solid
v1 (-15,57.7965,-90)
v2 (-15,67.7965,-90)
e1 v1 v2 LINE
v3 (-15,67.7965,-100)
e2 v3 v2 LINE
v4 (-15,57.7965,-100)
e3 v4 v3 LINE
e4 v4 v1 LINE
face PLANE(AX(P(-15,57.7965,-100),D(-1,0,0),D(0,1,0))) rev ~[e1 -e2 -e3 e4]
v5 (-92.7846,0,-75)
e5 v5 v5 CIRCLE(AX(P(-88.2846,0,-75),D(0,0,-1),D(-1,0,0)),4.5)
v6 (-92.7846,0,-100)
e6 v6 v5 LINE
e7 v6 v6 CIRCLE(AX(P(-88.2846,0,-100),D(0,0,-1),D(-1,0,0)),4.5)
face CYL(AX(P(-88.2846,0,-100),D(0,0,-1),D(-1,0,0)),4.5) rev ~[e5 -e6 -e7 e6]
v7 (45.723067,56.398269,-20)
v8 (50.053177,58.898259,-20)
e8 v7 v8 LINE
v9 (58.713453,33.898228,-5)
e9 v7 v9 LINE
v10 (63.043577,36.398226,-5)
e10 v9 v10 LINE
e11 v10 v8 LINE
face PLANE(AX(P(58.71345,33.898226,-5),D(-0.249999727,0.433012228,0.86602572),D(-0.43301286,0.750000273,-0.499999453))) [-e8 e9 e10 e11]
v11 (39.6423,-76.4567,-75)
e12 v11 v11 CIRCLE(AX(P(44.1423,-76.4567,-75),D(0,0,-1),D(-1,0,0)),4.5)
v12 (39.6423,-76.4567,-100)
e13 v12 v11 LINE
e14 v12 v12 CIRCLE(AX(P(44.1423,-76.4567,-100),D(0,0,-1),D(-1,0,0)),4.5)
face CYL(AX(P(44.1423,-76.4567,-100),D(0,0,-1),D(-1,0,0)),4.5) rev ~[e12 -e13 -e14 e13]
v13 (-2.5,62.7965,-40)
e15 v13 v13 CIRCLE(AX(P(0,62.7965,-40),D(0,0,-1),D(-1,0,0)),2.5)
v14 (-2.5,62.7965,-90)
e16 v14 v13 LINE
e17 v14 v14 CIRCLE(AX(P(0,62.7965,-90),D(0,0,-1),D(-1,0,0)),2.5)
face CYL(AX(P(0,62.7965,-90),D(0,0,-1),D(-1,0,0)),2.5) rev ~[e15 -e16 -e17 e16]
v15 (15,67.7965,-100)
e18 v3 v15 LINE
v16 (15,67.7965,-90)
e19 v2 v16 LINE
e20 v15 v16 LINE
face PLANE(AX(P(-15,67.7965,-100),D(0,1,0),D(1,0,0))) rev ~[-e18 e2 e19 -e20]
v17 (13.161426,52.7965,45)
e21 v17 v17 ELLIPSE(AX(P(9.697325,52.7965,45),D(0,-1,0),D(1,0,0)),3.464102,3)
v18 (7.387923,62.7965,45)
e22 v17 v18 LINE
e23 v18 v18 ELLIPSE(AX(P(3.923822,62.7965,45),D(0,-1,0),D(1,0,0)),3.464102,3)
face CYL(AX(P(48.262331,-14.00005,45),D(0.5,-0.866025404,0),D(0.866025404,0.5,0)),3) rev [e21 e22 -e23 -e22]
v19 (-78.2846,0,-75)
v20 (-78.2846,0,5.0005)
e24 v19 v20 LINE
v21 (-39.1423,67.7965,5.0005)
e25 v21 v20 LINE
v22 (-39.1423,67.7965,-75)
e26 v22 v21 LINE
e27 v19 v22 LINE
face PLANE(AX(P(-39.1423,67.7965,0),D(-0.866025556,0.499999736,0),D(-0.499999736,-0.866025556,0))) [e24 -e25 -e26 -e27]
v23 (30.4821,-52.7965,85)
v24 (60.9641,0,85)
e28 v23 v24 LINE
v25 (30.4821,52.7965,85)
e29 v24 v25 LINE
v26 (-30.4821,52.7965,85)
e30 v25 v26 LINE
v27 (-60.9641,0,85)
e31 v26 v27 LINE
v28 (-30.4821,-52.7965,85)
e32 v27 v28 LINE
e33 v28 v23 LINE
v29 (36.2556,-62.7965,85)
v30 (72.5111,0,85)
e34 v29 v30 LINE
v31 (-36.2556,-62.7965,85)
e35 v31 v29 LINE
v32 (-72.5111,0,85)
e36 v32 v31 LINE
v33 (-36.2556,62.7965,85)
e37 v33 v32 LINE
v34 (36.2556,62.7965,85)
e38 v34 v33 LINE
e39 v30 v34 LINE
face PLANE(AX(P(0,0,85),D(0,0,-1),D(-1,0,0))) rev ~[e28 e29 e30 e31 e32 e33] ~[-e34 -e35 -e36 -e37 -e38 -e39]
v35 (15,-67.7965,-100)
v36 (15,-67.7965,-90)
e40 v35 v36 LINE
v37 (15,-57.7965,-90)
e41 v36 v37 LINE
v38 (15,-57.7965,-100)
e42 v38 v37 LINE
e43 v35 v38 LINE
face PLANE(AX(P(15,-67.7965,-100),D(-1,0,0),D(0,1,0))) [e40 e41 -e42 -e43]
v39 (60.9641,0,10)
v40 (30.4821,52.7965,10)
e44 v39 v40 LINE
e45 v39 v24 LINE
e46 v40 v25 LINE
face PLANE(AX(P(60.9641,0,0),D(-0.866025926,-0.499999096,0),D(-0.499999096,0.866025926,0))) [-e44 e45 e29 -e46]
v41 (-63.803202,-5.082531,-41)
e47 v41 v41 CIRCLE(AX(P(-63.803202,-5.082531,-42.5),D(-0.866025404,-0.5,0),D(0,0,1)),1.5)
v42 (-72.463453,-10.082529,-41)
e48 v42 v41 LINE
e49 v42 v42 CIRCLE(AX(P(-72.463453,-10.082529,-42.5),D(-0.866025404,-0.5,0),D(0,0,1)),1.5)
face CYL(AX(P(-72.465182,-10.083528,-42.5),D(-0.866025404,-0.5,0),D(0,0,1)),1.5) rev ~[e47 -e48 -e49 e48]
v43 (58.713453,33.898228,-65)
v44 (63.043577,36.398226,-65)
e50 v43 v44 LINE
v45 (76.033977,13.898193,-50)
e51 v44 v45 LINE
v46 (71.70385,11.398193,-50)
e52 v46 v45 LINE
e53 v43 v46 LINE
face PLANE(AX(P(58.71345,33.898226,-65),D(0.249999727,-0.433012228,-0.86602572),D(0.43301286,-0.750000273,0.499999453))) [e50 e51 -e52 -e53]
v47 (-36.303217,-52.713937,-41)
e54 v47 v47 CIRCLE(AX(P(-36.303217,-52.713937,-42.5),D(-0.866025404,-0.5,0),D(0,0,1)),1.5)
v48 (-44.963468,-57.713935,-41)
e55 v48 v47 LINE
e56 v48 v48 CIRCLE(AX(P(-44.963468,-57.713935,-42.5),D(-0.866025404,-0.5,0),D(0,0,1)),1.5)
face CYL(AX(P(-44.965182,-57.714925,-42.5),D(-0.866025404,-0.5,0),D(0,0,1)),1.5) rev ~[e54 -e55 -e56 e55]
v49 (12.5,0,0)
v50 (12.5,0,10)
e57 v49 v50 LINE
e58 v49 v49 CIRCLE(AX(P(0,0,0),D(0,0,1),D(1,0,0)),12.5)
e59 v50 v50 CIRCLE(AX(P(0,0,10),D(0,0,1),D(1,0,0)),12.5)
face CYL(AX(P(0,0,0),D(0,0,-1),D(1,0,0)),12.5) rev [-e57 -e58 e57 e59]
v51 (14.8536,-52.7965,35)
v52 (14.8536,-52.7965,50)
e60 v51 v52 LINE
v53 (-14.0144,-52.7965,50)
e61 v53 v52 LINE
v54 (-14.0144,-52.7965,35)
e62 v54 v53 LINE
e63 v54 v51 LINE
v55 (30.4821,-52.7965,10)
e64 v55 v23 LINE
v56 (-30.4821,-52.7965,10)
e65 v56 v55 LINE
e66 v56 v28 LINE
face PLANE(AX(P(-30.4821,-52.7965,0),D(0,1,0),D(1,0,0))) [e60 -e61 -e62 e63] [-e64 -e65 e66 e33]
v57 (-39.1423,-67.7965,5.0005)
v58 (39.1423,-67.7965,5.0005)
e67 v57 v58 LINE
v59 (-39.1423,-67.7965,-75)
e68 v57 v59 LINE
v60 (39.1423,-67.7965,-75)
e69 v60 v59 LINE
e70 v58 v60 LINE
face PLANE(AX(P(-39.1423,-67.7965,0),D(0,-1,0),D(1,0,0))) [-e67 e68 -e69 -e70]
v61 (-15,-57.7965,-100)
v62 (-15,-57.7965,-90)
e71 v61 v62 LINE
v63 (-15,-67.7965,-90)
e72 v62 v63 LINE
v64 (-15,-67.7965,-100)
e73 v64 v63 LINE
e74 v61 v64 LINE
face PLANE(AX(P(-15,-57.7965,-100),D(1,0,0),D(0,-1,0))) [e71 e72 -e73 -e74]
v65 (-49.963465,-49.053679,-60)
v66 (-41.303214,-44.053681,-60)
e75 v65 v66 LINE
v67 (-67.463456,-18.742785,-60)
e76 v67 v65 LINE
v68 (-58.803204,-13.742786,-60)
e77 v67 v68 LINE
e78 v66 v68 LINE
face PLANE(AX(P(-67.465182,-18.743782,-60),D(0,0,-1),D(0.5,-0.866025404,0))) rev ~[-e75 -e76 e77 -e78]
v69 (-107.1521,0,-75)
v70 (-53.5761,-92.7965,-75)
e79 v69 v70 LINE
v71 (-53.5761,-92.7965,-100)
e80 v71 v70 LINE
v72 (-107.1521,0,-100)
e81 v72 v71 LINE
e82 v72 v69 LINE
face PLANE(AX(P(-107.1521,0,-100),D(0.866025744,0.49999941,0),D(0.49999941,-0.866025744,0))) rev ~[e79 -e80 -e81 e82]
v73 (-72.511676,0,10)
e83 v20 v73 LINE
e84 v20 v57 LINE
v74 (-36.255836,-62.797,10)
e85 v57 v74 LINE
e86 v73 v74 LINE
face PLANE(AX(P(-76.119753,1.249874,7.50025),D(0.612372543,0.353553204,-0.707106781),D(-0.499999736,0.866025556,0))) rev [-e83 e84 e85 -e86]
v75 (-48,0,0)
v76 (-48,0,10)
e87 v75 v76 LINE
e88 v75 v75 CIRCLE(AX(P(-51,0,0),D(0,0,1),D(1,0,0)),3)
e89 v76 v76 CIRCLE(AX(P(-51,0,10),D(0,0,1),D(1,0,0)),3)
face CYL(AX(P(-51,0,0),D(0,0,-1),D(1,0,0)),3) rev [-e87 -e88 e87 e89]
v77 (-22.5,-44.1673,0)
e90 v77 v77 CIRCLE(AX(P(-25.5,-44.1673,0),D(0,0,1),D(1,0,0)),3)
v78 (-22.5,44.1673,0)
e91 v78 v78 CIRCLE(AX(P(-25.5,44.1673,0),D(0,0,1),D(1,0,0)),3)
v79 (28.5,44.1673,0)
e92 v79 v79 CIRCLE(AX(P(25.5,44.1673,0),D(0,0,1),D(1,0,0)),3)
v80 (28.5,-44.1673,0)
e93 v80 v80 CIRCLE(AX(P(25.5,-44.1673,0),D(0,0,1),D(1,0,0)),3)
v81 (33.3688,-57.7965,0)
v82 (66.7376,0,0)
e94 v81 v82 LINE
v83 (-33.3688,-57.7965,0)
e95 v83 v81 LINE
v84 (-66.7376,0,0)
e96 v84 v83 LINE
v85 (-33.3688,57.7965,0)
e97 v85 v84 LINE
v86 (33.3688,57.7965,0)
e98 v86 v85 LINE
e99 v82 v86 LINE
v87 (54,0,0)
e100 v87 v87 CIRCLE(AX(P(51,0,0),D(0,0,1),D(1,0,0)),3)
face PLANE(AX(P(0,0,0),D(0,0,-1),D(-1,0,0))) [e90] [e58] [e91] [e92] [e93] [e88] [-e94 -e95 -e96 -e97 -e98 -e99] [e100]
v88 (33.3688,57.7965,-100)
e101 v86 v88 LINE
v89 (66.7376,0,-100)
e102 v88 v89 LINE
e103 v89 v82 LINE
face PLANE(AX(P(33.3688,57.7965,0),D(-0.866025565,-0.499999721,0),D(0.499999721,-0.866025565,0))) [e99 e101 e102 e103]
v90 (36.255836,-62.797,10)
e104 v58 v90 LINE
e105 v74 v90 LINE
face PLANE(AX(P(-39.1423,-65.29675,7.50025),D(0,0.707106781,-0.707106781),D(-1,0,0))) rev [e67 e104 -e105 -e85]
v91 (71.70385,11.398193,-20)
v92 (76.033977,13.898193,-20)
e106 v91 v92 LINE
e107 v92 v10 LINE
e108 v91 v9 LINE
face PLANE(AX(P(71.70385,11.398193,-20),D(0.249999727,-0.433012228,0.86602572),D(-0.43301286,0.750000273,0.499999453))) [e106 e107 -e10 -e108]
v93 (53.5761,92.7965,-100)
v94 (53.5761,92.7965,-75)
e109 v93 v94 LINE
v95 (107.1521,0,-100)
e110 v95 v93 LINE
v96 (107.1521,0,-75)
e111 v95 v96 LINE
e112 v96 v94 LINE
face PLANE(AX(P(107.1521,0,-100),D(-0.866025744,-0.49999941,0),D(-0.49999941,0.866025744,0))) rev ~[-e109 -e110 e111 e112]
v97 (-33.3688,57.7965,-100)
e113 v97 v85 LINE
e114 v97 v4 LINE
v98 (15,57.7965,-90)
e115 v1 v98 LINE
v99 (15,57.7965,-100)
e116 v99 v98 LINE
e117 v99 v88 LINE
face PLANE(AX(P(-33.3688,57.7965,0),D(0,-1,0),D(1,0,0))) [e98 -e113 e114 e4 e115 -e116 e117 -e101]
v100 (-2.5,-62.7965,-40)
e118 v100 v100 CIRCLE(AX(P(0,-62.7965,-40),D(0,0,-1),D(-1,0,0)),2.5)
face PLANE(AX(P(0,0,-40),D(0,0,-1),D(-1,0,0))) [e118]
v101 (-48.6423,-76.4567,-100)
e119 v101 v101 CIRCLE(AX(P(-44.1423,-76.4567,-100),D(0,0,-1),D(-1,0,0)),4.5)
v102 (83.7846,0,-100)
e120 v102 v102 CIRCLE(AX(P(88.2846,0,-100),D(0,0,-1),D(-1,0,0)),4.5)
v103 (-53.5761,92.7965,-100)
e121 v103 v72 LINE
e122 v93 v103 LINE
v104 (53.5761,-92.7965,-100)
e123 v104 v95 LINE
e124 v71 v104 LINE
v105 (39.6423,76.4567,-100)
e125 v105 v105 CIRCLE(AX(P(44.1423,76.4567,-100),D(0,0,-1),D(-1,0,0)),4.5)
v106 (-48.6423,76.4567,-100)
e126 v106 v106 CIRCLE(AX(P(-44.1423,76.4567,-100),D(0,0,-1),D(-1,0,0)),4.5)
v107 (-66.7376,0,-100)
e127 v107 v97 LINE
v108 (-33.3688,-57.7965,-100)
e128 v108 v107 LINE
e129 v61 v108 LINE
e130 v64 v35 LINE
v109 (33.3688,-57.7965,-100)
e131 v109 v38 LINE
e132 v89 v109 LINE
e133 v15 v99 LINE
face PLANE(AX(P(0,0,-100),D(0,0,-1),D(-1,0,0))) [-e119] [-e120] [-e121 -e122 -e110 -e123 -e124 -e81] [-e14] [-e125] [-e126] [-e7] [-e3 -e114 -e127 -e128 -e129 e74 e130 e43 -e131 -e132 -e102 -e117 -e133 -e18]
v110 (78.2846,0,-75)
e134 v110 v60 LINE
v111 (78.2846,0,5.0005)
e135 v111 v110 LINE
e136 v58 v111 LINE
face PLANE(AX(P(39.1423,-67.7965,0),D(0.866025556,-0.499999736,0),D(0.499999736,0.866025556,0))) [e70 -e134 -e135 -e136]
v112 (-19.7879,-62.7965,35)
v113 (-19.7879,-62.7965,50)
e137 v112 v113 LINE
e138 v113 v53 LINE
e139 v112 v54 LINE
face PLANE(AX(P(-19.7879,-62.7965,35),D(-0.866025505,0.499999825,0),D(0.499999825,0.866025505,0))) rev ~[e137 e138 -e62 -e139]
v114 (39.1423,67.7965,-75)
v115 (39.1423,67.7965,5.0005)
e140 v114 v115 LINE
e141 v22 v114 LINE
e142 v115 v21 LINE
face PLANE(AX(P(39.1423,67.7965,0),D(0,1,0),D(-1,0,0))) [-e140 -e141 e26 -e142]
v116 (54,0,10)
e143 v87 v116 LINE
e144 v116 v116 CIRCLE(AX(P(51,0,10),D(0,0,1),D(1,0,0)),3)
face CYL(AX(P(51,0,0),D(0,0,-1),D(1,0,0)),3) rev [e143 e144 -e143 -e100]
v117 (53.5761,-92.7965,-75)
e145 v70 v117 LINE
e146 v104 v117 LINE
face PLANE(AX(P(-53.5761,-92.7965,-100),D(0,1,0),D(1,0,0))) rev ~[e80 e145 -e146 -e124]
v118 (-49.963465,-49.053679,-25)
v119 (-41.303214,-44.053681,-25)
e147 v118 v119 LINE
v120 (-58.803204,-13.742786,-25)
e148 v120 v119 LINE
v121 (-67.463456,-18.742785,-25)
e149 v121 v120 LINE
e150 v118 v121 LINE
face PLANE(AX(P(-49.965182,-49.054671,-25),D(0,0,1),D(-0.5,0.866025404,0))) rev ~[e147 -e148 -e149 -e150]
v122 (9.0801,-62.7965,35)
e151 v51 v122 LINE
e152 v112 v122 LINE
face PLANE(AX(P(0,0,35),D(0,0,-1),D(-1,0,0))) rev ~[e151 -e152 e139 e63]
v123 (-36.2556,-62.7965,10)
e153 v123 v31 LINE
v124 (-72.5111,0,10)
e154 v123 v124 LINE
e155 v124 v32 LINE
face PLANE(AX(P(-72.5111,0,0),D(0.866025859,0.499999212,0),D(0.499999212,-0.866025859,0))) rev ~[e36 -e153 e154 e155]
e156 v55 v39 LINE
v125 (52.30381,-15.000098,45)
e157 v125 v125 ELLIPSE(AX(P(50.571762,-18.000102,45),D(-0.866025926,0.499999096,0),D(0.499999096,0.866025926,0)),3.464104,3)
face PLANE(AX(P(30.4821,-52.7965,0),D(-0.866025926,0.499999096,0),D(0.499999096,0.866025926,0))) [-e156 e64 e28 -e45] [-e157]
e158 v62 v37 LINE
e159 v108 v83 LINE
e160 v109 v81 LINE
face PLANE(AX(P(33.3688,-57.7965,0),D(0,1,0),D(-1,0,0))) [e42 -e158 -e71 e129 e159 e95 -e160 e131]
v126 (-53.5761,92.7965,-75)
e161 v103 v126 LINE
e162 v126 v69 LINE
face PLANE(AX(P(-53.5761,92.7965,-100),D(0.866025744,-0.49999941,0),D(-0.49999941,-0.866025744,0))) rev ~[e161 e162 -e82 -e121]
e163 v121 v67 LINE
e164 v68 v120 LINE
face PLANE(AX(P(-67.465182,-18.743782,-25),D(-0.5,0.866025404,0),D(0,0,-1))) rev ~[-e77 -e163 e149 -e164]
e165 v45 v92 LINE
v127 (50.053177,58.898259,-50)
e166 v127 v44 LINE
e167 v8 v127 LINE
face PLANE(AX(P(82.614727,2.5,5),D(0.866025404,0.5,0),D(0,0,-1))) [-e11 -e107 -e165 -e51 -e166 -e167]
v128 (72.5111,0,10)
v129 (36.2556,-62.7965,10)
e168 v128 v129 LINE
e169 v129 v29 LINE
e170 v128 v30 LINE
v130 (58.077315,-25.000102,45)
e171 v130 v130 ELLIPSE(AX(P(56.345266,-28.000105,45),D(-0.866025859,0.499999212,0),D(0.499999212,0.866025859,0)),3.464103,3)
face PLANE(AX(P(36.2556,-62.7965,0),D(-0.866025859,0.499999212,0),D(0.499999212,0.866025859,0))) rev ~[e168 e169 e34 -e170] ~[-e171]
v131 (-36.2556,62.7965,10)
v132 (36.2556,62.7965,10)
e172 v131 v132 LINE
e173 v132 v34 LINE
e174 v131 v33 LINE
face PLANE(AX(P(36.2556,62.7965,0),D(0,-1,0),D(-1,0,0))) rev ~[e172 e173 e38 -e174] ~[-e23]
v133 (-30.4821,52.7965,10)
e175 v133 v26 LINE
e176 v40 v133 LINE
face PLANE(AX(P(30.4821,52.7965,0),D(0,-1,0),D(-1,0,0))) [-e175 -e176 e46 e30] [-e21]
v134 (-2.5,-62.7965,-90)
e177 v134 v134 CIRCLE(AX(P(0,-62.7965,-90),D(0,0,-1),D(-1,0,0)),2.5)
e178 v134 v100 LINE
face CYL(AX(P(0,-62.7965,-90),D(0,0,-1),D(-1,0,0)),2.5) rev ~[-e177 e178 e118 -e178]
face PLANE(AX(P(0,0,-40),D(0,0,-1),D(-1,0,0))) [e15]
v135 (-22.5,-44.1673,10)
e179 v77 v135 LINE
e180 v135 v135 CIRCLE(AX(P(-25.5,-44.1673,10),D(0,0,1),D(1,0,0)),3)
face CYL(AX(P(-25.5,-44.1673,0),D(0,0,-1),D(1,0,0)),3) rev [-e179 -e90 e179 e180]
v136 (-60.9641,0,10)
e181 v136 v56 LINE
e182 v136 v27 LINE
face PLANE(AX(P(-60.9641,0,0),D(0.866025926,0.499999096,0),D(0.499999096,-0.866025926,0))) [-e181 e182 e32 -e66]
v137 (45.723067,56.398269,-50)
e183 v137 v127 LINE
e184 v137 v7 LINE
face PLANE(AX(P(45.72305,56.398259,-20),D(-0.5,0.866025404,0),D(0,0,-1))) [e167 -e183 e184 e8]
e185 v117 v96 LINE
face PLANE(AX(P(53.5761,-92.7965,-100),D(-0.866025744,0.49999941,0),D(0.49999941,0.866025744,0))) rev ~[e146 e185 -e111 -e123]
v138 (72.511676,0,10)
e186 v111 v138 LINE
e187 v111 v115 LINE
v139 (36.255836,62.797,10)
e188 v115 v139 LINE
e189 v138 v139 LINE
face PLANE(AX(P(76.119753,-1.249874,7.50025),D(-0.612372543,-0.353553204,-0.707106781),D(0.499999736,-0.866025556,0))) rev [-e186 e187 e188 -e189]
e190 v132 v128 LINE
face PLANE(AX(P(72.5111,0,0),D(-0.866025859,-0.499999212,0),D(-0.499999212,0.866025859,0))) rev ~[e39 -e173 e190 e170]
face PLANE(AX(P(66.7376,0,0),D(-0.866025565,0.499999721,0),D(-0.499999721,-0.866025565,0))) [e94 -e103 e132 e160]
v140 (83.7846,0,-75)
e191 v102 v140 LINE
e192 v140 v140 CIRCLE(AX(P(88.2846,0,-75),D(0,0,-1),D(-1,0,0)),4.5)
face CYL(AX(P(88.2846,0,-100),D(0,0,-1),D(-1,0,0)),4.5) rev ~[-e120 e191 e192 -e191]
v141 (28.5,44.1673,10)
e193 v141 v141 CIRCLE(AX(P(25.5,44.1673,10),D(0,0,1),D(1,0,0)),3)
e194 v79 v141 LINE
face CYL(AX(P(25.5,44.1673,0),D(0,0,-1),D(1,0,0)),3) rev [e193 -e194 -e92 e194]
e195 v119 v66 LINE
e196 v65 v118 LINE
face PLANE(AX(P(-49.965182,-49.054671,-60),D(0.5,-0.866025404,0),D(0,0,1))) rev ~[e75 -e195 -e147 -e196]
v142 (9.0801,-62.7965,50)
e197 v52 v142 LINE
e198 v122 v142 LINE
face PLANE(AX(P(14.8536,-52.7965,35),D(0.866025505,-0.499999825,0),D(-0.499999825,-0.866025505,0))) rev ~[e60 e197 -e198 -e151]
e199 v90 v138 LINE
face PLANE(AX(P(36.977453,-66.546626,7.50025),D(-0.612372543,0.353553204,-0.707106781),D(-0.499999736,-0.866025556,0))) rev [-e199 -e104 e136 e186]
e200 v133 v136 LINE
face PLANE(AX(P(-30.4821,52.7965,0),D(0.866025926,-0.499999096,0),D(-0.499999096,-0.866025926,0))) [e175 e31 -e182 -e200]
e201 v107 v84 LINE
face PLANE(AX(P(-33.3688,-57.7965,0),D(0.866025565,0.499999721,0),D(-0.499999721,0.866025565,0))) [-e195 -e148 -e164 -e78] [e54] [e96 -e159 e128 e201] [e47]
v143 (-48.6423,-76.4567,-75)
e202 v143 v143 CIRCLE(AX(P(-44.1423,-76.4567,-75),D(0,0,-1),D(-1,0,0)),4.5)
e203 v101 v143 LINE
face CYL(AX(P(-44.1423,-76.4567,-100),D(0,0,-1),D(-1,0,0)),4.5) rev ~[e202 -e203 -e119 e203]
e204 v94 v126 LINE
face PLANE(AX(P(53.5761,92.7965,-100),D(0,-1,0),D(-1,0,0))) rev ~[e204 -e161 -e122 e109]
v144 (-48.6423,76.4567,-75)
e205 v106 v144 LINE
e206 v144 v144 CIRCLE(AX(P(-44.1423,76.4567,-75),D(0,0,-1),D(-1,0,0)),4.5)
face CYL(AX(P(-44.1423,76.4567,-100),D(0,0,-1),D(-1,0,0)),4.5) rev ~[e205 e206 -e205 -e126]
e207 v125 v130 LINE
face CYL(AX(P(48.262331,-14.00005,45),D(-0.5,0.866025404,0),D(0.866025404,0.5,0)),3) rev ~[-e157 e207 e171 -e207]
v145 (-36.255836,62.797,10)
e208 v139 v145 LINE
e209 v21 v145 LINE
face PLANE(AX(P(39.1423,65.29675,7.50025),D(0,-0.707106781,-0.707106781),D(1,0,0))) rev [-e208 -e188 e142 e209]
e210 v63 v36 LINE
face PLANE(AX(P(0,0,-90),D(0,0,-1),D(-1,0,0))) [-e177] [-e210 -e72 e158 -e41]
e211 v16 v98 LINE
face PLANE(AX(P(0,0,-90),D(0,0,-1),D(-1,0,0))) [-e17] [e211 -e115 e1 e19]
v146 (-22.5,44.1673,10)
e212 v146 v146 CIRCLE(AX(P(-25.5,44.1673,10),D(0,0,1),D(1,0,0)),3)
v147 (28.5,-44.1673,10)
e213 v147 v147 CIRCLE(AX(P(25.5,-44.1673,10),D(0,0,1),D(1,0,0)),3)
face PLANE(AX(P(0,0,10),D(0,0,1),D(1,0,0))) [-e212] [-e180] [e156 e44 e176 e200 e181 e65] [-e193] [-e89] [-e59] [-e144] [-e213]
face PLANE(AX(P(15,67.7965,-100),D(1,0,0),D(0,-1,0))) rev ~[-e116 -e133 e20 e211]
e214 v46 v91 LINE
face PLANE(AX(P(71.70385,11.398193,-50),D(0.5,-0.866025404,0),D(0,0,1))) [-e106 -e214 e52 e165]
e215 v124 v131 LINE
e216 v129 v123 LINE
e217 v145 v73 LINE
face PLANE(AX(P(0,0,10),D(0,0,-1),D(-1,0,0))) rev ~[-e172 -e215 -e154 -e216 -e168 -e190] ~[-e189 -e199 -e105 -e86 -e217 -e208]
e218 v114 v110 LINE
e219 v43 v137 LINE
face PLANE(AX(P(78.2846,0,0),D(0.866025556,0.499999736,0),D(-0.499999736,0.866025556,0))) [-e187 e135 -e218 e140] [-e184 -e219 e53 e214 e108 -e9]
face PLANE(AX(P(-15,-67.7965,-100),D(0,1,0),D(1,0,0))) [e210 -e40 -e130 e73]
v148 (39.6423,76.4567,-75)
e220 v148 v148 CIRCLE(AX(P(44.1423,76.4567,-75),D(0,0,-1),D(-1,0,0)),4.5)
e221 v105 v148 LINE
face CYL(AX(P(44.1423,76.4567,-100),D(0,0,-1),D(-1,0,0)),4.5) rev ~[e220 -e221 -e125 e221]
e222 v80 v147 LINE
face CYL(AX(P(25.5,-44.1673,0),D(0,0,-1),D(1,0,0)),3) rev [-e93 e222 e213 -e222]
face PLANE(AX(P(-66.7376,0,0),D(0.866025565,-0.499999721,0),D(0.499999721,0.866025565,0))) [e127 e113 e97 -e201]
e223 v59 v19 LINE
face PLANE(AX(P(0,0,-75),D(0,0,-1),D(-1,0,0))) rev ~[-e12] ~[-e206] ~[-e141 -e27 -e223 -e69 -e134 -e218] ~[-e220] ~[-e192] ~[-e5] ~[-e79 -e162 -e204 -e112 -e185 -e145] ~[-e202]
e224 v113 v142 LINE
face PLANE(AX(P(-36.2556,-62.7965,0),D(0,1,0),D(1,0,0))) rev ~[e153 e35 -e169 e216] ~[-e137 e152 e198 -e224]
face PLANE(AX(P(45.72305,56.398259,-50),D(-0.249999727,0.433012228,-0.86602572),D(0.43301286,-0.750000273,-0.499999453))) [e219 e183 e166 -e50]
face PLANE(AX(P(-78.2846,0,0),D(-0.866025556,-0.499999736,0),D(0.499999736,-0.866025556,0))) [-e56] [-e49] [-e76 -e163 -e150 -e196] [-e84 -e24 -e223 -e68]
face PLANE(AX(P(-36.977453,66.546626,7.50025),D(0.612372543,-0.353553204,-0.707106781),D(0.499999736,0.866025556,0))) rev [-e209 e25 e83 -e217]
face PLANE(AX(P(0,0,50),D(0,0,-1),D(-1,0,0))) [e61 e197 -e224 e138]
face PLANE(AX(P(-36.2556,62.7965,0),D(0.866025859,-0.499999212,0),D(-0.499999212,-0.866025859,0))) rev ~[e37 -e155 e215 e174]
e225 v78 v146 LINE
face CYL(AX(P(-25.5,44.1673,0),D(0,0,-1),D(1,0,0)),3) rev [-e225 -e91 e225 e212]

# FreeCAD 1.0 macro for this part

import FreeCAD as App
import Part
import Sketcher
Q = App.Units.Quantity


def edges_at(feature, points):
    """Names of the edges that pass closest to the given points."""
    edges = feature.Shape.Edges
    near = lambda p: min(range(len(edges)), key=lambda i: edges[i].distToShape(Part.Vertex(*p))[0])
    return sorted({f"Edge{near(p) + 1}" for p in points})

doc = App.newDocument("Part")
body = doc.addObject("PartDesign::Body", "Body")

sketch1 = body.newObject("Sketcher::SketchObject", "Sketch")
sketch1.AttachmentSupport = (doc.getObject("XY_Plane"), [""])
sketch1.MapMode = "FlatFace"
sketch1.addGeometry(Part.LineSegment(App.Vector(30.5, 52.8, 0), App.Vector(-30.5, 52.8, 0)), False)
sketch1.addGeometry(Part.LineSegment(App.Vector(-30.5, 52.8, 0), App.Vector(-61, 0, 0)), False)
sketch1.addGeometry(Part.LineSegment(App.Vector(-61, 0, 0), App.Vector(-30.5, -52.8, 0)), False)
sketch1.addGeometry(Part.LineSegment(App.Vector(-30.5, -52.8, 0), App.Vector(30.5, -52.8, 0)), False)
sketch1.addGeometry(Part.LineSegment(App.Vector(30.5, -52.8, 0), App.Vector(61, 0, 0)), False)
sketch1.addGeometry(Part.LineSegment(App.Vector(61, 0, 0), App.Vector(30.5, 52.8, 0)), False)
sketch1.addGeometry(Part.Circle(App.Vector(-25.5, -44.2, 0), App.Vector(0, 0, 1), 3), False)
sketch1.addGeometry(Part.Circle(App.Vector(25.5, -44.2, 0), App.Vector(0, 0, 1), 3), False)
sketch1.addGeometry(Part.Circle(App.Vector(-51, 0, 0), App.Vector(0, 0, 1), 3), False)
sketch1.addGeometry(Part.Circle(App.Vector(0, 0, 0), App.Vector(0, 0, 1), 12.5), False)
sketch1.addGeometry(Part.Circle(App.Vector(-25.5, 44.2, 0), App.Vector(0, 0, 1), 3), False)
sketch1.addGeometry(Part.Circle(App.Vector(51, 0, 0), App.Vector(0, 0, 1), 3), False)
sketch1.addGeometry(Part.Circle(App.Vector(25.5, 44.2, 0), App.Vector(0, 0, 1), 3), False)
sketch1.addConstraint(Sketcher.Constraint("Coincident", 0, 2, 1, 1))
sketch1.addConstraint(Sketcher.Constraint("Coincident", 1, 2, 2, 1))
sketch1.addConstraint(Sketcher.Constraint("Coincident", 2, 2, 3, 1))
sketch1.addConstraint(Sketcher.Constraint("Coincident", 3, 2, 4, 1))
sketch1.addConstraint(Sketcher.Constraint("Coincident", 4, 2, 5, 1))
sketch1.addConstraint(Sketcher.Constraint("Coincident", 5, 2, 0, 1))
sketch1.addConstraint(Sketcher.Constraint("Horizontal", 0))
sketch1.addConstraint(Sketcher.Constraint("Horizontal", 3))
sketch1.addConstraint(Sketcher.Constraint("Coincident", 9, 3, -1, 1))
sketch1.addConstraint(Sketcher.Constraint("Equal", 6, 7))
sketch1.addConstraint(Sketcher.Constraint("Equal", 7, 8))
sketch1.addConstraint(Sketcher.Constraint("Equal", 8, 10))
sketch1.addConstraint(Sketcher.Constraint("Equal", 10, 11))
sketch1.addConstraint(Sketcher.Constraint("Equal", 11, 12))
sketch1.addConstraint(Sketcher.Constraint("Symmetric", 7, 3, 10, 3, -1, 1))
sketch1.addConstraint(Sketcher.Constraint("Symmetric", 8, 3, 11, 3, -1, 1))
sketch1.addConstraint(Sketcher.Constraint("Symmetric", 6, 3, 12, 3, -1, 1))
sketch1.addConstraint(Sketcher.Constraint("Symmetric", 0, 2, 3, 2, -1, 1))
sketch1.addConstraint(Sketcher.Constraint("Symmetric", 1, 2, 4, 2, -1, 1))
sketch1.addConstraint(Sketcher.Constraint("Symmetric", 6, 3, 7, 3, -2))
sketch1.addConstraint(Sketcher.Constraint("PointOnObject", 8, 3, -1))
sketch1.addConstraint(Sketcher.Constraint("PointOnObject", 1, 2, -1))
sketch1.addConstraint(Sketcher.Constraint("Parallel", 2, 5))
sketch1.addConstraint(Sketcher.Constraint("Vertical", 0, 2, 2, 2))
sketch1.addConstraint(Sketcher.Constraint("Diameter", 6, 6.0))
sketch1.addConstraint(Sketcher.Constraint("Diameter", 9, 25.0))
sketch1.addConstraint(Sketcher.Constraint("DistanceX", 8, 3, -1, 1, 51.0))
sketch1.addConstraint(Sketcher.Constraint("DistanceX", 6, 3, 7, 3, 51.0))
sketch1.addConstraint(Sketcher.Constraint("Angle", 1, Q("-120 deg")))
sketch1.addConstraint(Sketcher.Constraint("Distance", 1, 60.964))
sketch1.addConstraint(Sketcher.Constraint("DistanceX", 0, 2, 0, 1, 60.9642))
sketch1.addConstraint(Sketcher.Constraint("DistanceY", 6, 3, -1, 1, 44.1673))
pad1 = body.newObject("PartDesign::Pad", "Pad")
pad1.Profile = sketch1
pad1.Length = 10

sketch2 = body.newObject("Sketcher::SketchObject", "Sketch001")
sketch2.AttachmentSupport = (doc.getObject("XY_Plane"), [""])
sketch2.MapMode = "FlatFace"
sketch2.addGeometry(Part.LineSegment(App.Vector(36, -63, 0), App.Vector(-36, -63, 0)), False)
sketch2.addGeometry(Part.LineSegment(App.Vector(-36, -63, 0), App.Vector(-73, 0, 0)), False)
sketch2.addGeometry(Part.LineSegment(App.Vector(-73, 0, 0), App.Vector(-36, 63, 0)), False)
sketch2.addGeometry(Part.LineSegment(App.Vector(-36, 63, 0), App.Vector(36, 63, 0)), False)
sketch2.addGeometry(Part.LineSegment(App.Vector(36, 63, 0), App.Vector(73, 0, 0)), False)
sketch2.addGeometry(Part.LineSegment(App.Vector(73, 0, 0), App.Vector(36, -63, 0)), False)
sketch2.addGeometry(Part.LineSegment(App.Vector(30, 53, 0), App.Vector(-30, 53, 0)), False)
sketch2.addGeometry(Part.LineSegment(App.Vector(-30, 53, 0), App.Vector(-61, 0, 0)), False)
sketch2.addGeometry(Part.LineSegment(App.Vector(-61, 0, 0), App.Vector(-30, -53, 0)), False)
sketch2.addGeometry(Part.LineSegment(App.Vector(-30, -53, 0), App.Vector(30, -53, 0)), False)
sketch2.addGeometry(Part.LineSegment(App.Vector(30, -53, 0), App.Vector(61, 0, 0)), False)
sketch2.addGeometry(Part.LineSegment(App.Vector(61, 0, 0), App.Vector(30, 53, 0)), False)
sketch2.addConstraint(Sketcher.Constraint("Coincident", 0, 2, 1, 1))
sketch2.addConstraint(Sketcher.Constraint("Coincident", 1, 2, 2, 1))
sketch2.addConstraint(Sketcher.Constraint("Coincident", 2, 2, 3, 1))
sketch2.addConstraint(Sketcher.Constraint("Coincident", 3, 2, 4, 1))
sketch2.addConstraint(Sketcher.Constraint("Coincident", 4, 2, 5, 1))
sketch2.addConstraint(Sketcher.Constraint("Coincident", 5, 2, 0, 1))
sketch2.addConstraint(Sketcher.Constraint("Coincident", 6, 2, 7, 1))
sketch2.addConstraint(Sketcher.Constraint("Coincident", 7, 2, 8, 1))
sketch2.addConstraint(Sketcher.Constraint("Coincident", 8, 2, 9, 1))
sketch2.addConstraint(Sketcher.Constraint("Coincident", 9, 2, 10, 1))
sketch2.addConstraint(Sketcher.Constraint("Coincident", 10, 2, 11, 1))
sketch2.addConstraint(Sketcher.Constraint("Coincident", 11, 2, 6, 1))
sketch2.addConstraint(Sketcher.Constraint("Horizontal", 0))
sketch2.addConstraint(Sketcher.Constraint("Horizontal", 3))
sketch2.addConstraint(Sketcher.Constraint("Horizontal", 6))
sketch2.addConstraint(Sketcher.Constraint("Horizontal", 9))
sketch2.addConstraint(Sketcher.Constraint("Symmetric", 0, 2, 3, 2, -1, 1))
sketch2.addConstraint(Sketcher.Constraint("Symmetric", 1, 2, 4, 2, -1, 1))
sketch2.addConstraint(Sketcher.Constraint("Symmetric", 6, 2, 9, 2, -1, 1))
sketch2.addConstraint(Sketcher.Constraint("Symmetric", 7, 2, 10, 2, -1, 1))
sketch2.addConstraint(Sketcher.Constraint("PointOnObject", 1, 2, -1))
sketch2.addConstraint(Sketcher.Constraint("PointOnObject", 7, 2, -1))
sketch2.addConstraint(Sketcher.Constraint("Parallel", 2, 5))
sketch2.addConstraint(Sketcher.Constraint("Parallel", 5, 7))
sketch2.addConstraint(Sketcher.Constraint("Parallel", 4, 8))
sketch2.addConstraint(Sketcher.Constraint("Parallel", 8, 11))
sketch2.addConstraint(Sketcher.Constraint("Vertical", 0, 2, 2, 2))
sketch2.addConstraint(Sketcher.Constraint("DistanceY", 6, 2, 2, 2, 10.0))
sketch2.addConstraint(Sketcher.Constraint("Angle", 1, Q("120 deg")))
sketch2.addConstraint(Sketcher.Constraint("Distance", 1, 72.511))
sketch2.addConstraint(Sketcher.Constraint("DistanceX", 0, 2, 0, 1, 72.5112))
sketch2.addConstraint(Sketcher.Constraint("DistanceX", 6, 2, 6, 1, 60.9642))
pad2 = body.newObject("PartDesign::Pad", "Pad001")
pad2.Profile = sketch2
pad2.Length = 85

sketch3 = body.newObject("Sketcher::SketchObject", "Sketch002")
sketch3.AttachmentSupport = (doc.getObject("XY_Plane"), [""])
sketch3.MapMode = "FlatFace"
sketch3.AttachmentOffset = App.Placement(App.Vector(0, 0, 35), App.Rotation())
sketch3.addGeometry(Part.LineSegment(App.Vector(9, -63, 0), App.Vector(-20, -63, 0)), False)
sketch3.addGeometry(Part.LineSegment(App.Vector(-20, -63, 0), App.Vector(-14, -53, 0)), False)
sketch3.addGeometry(Part.LineSegment(App.Vector(-14, -53, 0), App.Vector(15, -53, 0)), False)
sketch3.addGeometry(Part.LineSegment(App.Vector(15, -53, 0), App.Vector(9, -63, 0)), False)
sketch3.addConstraint(Sketcher.Constraint("Coincident", 0, 2, 1, 1))
sketch3.addConstraint(Sketcher.Constraint("Coincident", 1, 2, 2, 1))
sketch3.addConstraint(Sketcher.Constraint("Coincident", 2, 2, 3, 1))
sketch3.addConstraint(Sketcher.Constraint("Coincident", 3, 2, 0, 1))
sketch3.addConstraint(Sketcher.Constraint("Horizontal", 0))
sketch3.addConstraint(Sketcher.Constraint("Horizontal", 2))
sketch3.addConstraint(Sketcher.Constraint("Parallel", 1, 3))
sketch3.addConstraint(Sketcher.Constraint("Angle", 1, Q("60 deg")))
sketch3.addConstraint(Sketcher.Constraint("DistanceX", 0, 2, 0, 1, 28.868))
sketch3.addConstraint(Sketcher.Constraint("DistanceY", 0, 2, 1, 2, 10.0))
sketch3.addConstraint(Sketcher.Constraint("DistanceX", -1, 1, 3, 2, 9.08))
sketch3.addConstraint(Sketcher.Constraint("DistanceY", 0, 2, -1, 1, 62.7965))
pocket1 = body.newObject("PartDesign::Pocket", "Pocket")
pocket1.Profile = sketch3
pocket1.Length = 15
pocket1.Reversed = True

sketch4 = body.newObject("Sketcher::SketchObject", "Sketch003")
sketch4.Placement = App.Placement(App.Vector(-36.2556, -62.7965, 85), App.Rotation(App.Vector(0.866025404, 0.5, 0), App.Vector(0, 0, -1), App.Vector(-0.5, 0.866025404, 0), "ZXY"))
sketch4.addGeometry(Part.Circle(App.Vector(97.6, 40, 0), App.Vector(0, 0, 1), 3), False)
sketch4.addConstraint(Sketcher.Constraint("Diameter", 0, 6.0))
sketch4.addConstraint(Sketcher.Constraint("DistanceY", -1, 1, 0, 3, 40.0))
sketch4.addConstraint(Sketcher.Constraint("DistanceX", -1, 1, 0, 3, 97.593))
pocket2 = body.newObject("PartDesign::Pocket", "Pocket001")
pocket2.Profile = sketch4
pocket2.Type = "ThroughAll"
pocket2.Midplane = True

sketch5 = body.newObject("Sketcher::SketchObject", "Sketch004")
sketch5.AttachmentSupport = (doc.getObject("XY_Plane"), [""])
sketch5.MapMode = "FlatFace"
sketch5.addGeometry(Part.LineSegment(App.Vector(39, 68, 0), App.Vector(78, 0, 0)), False)
sketch5.addGeometry(Part.LineSegment(App.Vector(78, 0, 0), App.Vector(39, -68, 0)), False)
sketch5.addGeometry(Part.LineSegment(App.Vector(39, -68, 0), App.Vector(-39, -68, 0)), False)
sketch5.addGeometry(Part.LineSegment(App.Vector(-39, -68, 0), App.Vector(-78, 0, 0)), False)
sketch5.addGeometry(Part.LineSegment(App.Vector(-78, 0, 0), App.Vector(-39, 68, 0)), False)
sketch5.addGeometry(Part.LineSegment(App.Vector(-39, 68, 0), App.Vector(39, 68, 0)), False)
sketch5.addGeometry(Part.LineSegment(App.Vector(67, 0, 0), App.Vector(33, 58, 0)), False)
sketch5.addGeometry(Part.LineSegment(App.Vector(33, 58, 0), App.Vector(-33, 58, 0)), False)
sketch5.addGeometry(Part.LineSegment(App.Vector(-33, 58, 0), App.Vector(-67, 0, 0)), False)
sketch5.addGeometry(Part.LineSegment(App.Vector(-67, 0, 0), App.Vector(-33, -58, 0)), False)
sketch5.addGeometry(Part.LineSegment(App.Vector(-33, -58, 0), App.Vector(33, -58, 0)), False)
sketch5.addGeometry(Part.LineSegment(App.Vector(33, -58, 0), App.Vector(67, 0, 0)), False)
sketch5.addConstraint(Sketcher.Constraint("Coincident", 0, 2, 1, 1))
sketch5.addConstraint(Sketcher.Constraint("Coincident", 1, 2, 2, 1))
sketch5.addConstraint(Sketcher.Constraint("Coincident", 2, 2, 3, 1))
sketch5.addConstraint(Sketcher.Constraint("Coincident", 3, 2, 4, 1))
sketch5.addConstraint(Sketcher.Constraint("Coincident", 4, 2, 5, 1))
sketch5.addConstraint(Sketcher.Constraint("Coincident", 5, 2, 0, 1))
sketch5.addConstraint(Sketcher.Constraint("Coincident", 6, 2, 7, 1))
sketch5.addConstraint(Sketcher.Constraint("Coincident", 7, 2, 8, 1))
sketch5.addConstraint(Sketcher.Constraint("Coincident", 8, 2, 9, 1))
sketch5.addConstraint(Sketcher.Constraint("Coincident", 9, 2, 10, 1))
sketch5.addConstraint(Sketcher.Constraint("Coincident", 10, 2, 11, 1))
sketch5.addConstraint(Sketcher.Constraint("Coincident", 11, 2, 6, 1))
sketch5.addConstraint(Sketcher.Constraint("Horizontal", 2))
sketch5.addConstraint(Sketcher.Constraint("Horizontal", 5))
sketch5.addConstraint(Sketcher.Constraint("Horizontal", 7))
sketch5.addConstraint(Sketcher.Constraint("Horizontal", 10))
sketch5.addConstraint(Sketcher.Constraint("Symmetric", 0, 2, 3, 2, -1, 1))
sketch5.addConstraint(Sketcher.Constraint("Symmetric", 1, 2, 4, 2, -1, 1))
sketch5.addConstraint(Sketcher.Constraint("Symmetric", 6, 2, 9, 2, -1, 1))
sketch5.addConstraint(Sketcher.Constraint("Symmetric", 8, 2, 11, 2, -1, 1))
sketch5.addConstraint(Sketcher.Constraint("PointOnObject", 0, 2, -1))
sketch5.addConstraint(Sketcher.Constraint("PointOnObject", 8, 2, -1))
sketch5.addConstraint(Sketcher.Constraint("Parallel", 0, 3))
sketch5.addConstraint(Sketcher.Constraint("Parallel", 3, 6))
sketch5.addConstraint(Sketcher.Constraint("Parallel", 4, 8))
sketch5.addConstraint(Sketcher.Constraint("Parallel", 8, 11))
sketch5.addConstraint(Sketcher.Constraint("Vertical", 2, 2, 4, 2))
sketch5.addConstraint(Sketcher.Constraint("Angle", 0, Q("-60 deg")))
sketch5.addConstraint(Sketcher.Constraint("DistanceY", 6, 2, 5, 2, 10.0))
sketch5.addConstraint(Sketcher.Constraint("DistanceX", 2, 2, 2, 1, 78.2846))
sketch5.addConstraint(Sketcher.Constraint("DistanceX", 7, 2, 7, 1, 66.7376))
sketch5.addConstraint(Sketcher.Constraint("DistanceX", 2, 2, 0, 2, 117.427))
pad3 = body.newObject("PartDesign::Pad", "Pad002")
pad3.Profile = sketch5
pad3.Type = "TwoLengths"
pad3.Length = 100
pad3.Length2 = 10
pad3.Reversed = True

sketch6 = body.newObject("Sketcher::SketchObject", "Sketch005")
sketch6.AttachmentSupport = (doc.getObject("XY_Plane"), [""])
sketch6.MapMode = "FlatFace"
sketch6.AttachmentOffset = App.Placement(App.Vector(0, 0, -100), App.Rotation())
sketch6.addGeometry(Part.LineSegment(App.Vector(107.2, 0, 0), App.Vector(53.6, -92.8, 0)), False)
sketch6.addGeometry(Part.LineSegment(App.Vector(53.6, -92.8, 0), App.Vector(-53.6, -92.8, 0)), False)
sketch6.addGeometry(Part.LineSegment(App.Vector(-53.6, -92.8, 0), App.Vector(-107.2, 0, 0)), False)
sketch6.addGeometry(Part.LineSegment(App.Vector(-107.2, 0, 0), App.Vector(-53.6, 92.8, 0)), False)
sketch6.addGeometry(Part.LineSegment(App.Vector(-53.6, 92.8, 0), App.Vector(53.6, 92.8, 0)), False)
sketch6.addGeometry(Part.LineSegment(App.Vector(53.6, 92.8, 0), App.Vector(107.2, 0, 0)), False)
sketch6.addGeometry(Part.Circle(App.Vector(44.1, -76.5, 0), App.Vector(0, 0, 1), 4.5), False)
sketch6.addGeometry(Part.Circle(App.Vector(-44.1, -76.5, 0), App.Vector(0, 0, 1), 4.5), False)
sketch6.addGeometry(Part.Circle(App.Vector(88.3, 0, 0), App.Vector(0, 0, 1), 4.5), False)
sketch6.addGeometry(Part.Circle(App.Vector(44.1, 76.5, 0), App.Vector(0, 0, 1), 4.5), False)
sketch6.addGeometry(Part.LineSegment(App.Vector(78.3, 0, 0), App.Vector(39.1, 67.8, 0)), False)
sketch6.addGeometry(Part.LineSegment(App.Vector(39.1, 67.8, 0), App.Vector(-39.1, 67.8, 0)), False)
sketch6.addGeometry(Part.LineSegment(App.Vector(-39.1, 67.8, 0), App.Vector(-78.3, 0, 0)), False)
sketch6.addGeometry(Part.LineSegment(App.Vector(-78.3, 0, 0), App.Vector(-39.1, -67.8, 0)), False)
sketch6.addGeometry(Part.LineSegment(App.Vector(-39.1, -67.8, 0), App.Vector(39.1, -67.8, 0)), False)
sketch6.addGeometry(Part.LineSegment(App.Vector(39.1, -67.8, 0), App.Vector(78.3, 0, 0)), False)
sketch6.addGeometry(Part.Circle(App.Vector(-88.3, 0, 0), App.Vector(0, 0, 1), 4.5), False)
sketch6.addGeometry(Part.Circle(App.Vector(-44.1, 76.5, 0), App.Vector(0, 0, 1), 4.5), False)
sketch6.addConstraint(Sketcher.Constraint("Coincident", 0, 2, 1, 1))
sketch6.addConstraint(Sketcher.Constraint("Coincident", 1, 2, 2, 1))
sketch6.addConstraint(Sketcher.Constraint("Coincident", 2, 2, 3, 1))
sketch6.addConstraint(Sketcher.Constraint("Coincident", 3, 2, 4, 1))
sketch6.addConstraint(Sketcher.Constraint("Coincident", 4, 2, 5, 1))
sketch6.addConstraint(Sketcher.Constraint("Coincident", 5, 2, 0, 1))
sketch6.addConstraint(Sketcher.Constraint("Coincident", 10, 2, 11, 1))
sketch6.addConstraint(Sketcher.Constraint("Coincident", 11, 2, 12, 1))
sketch6.addConstraint(Sketcher.Constraint("Coincident", 12, 2, 13, 1))
sketch6.addConstraint(Sketcher.Constraint("Coincident", 13, 2, 14, 1))
sketch6.addConstraint(Sketcher.Constraint("Coincident", 14, 2, 15, 1))
sketch6.addConstraint(Sketcher.Constraint("Coincident", 15, 2, 10, 1))
sketch6.addConstraint(Sketcher.Constraint("Horizontal", 1))
sketch6.addConstraint(Sketcher.Constraint("Horizontal", 4))
sketch6.addConstraint(Sketcher.Constraint("Horizontal", 11))
sketch6.addConstraint(Sketcher.Constraint("Horizontal", 14))
sketch6.addConstraint(Sketcher.Constraint("Equal", 6, 7))
sketch6.addConstraint(Sketcher.Constraint("Equal", 7, 8))
sketch6.addConstraint(Sketcher.Constraint("Equal", 8, 9))
sketch6.addConstraint(Sketcher.Constraint("Equal", 9, 16))
sketch6.addConstraint(Sketcher.Constraint("Equal", 16, 17))
sketch6.addConstraint(Sketcher.Constraint("Symmetric", 7, 3, 9, 3, -1, 1))
sketch6.addConstraint(Sketcher.Constraint("Symmetric", 8, 3, 16, 3, -1, 1))
sketch6.addConstraint(Sketcher.Constraint("Symmetric", 6, 3, 17, 3, -1, 1))
sketch6.addConstraint(Sketcher.Constraint("Symmetric", 0, 2, 3, 2, -1, 1))
sketch6.addConstraint(Sketcher.Constraint("Symmetric", 2, 2, 5, 2, -1, 1))
sketch6.addConstraint(Sketcher.Constraint("Symmetric", 10, 2, 13, 2, -1, 1))
sketch6.addConstraint(Sketcher.Constraint("Symmetric", 12, 2, 15, 2, -1, 1))
sketch6.addConstraint(Sketcher.Constraint("Symmetric", 6, 3, 7, 3, -2))
sketch6.addConstraint(Sketcher.Constraint("PointOnObject", 8, 3, -1))
sketch6.addConstraint(Sketcher.Constraint("PointOnObject", 2, 2, -1))
sketch6.addConstraint(Sketcher.Constraint("PointOnObject", 12, 2, -1))
sketch6.addConstraint(Sketcher.Constraint("Parallel", 2, 5))
sketch6.addConstraint(Sketcher.Constraint("Parallel", 5, 10))
sketch6.addConstraint(Sketcher.Constraint("Parallel", 3, 12))
sketch6.addConstraint(Sketcher.Constraint("Parallel", 12, 15))
sketch6.addConstraint(Sketcher.Constraint("Vertical", 1, 2, 3, 2))
sketch6.addConstraint(Sketcher.Constraint("Diameter", 6, 9.0))
sketch6.addConstraint(Sketcher.Constraint("DistanceY", 10, 2, 4, 2, 25.0))
sketch6.addConstraint(Sketcher.Constraint("DistanceX", 16, 3, 12, 2, 10.0))
sketch6.addConstraint(Sketcher.Constraint("Angle", 0, Q("-120 deg")))
sketch6.addConstraint(Sketcher.Constraint("DistanceX", 10, 2, 9, 3, 5.0))
sketch6.addConstraint(Sketcher.Constraint("DistanceX", 1, 2, 1, 1, 107.1522))
sketch6.addConstraint(Sketcher.Constraint("DistanceX", 11, 2, 11, 1, 78.2846))
sketch6.addConstraint(Sketcher.Constraint("DistanceX", 2, 2, -1, 1, 107.152))
sketch6.addConstraint(Sketcher.Constraint("DistanceY", 6, 3, -1, 1, 76.4567))
pad4 = body.newObject("PartDesign::Pad", "Pad003")
pad4.Profile = sketch6
pad4.Length = 25

sketch7 = body.newObject("Sketcher::SketchObject", "Sketch006")
sketch7.AttachmentSupport = (doc.getObject("XY_Plane"), [""])
sketch7.MapMode = "FlatFace"
sketch7.AttachmentOffset = App.Placement(App.Vector(0, 0, -100), App.Rotation())
sketch7.addGeometry(Part.LineSegment(App.Vector(-15, -68, 0), App.Vector(-15, -58, 0)), False)
sketch7.addGeometry(Part.LineSegment(App.Vector(-15, -58, 0), App.Vector(15, -58, 0)), False)
sketch7.addGeometry(Part.LineSegment(App.Vector(15, -58, 0), App.Vector(15, -68, 0)), False)
sketch7.addGeometry(Part.LineSegment(App.Vector(15, -68, 0), App.Vector(-15, -68, 0)), False)
sketch7.addGeometry(Part.LineSegment(App.Vector(15, 58, 0), App.Vector(-15, 58, 0)), False)
sketch7.addGeometry(Part.LineSegment(App.Vector(-15, 58, 0), App.Vector(-15, 68, 0)), False)
sketch7.addGeometry(Part.LineSegment(App.Vector(-15, 68, 0), App.Vector(15, 68, 0)), False)
sketch7.addGeometry(Part.LineSegment(App.Vector(15, 68, 0), App.Vector(15, 58, 0)), False)
sketch7.addConstraint(Sketcher.Constraint("Coincident", 0, 2, 1, 1))
sketch7.addConstraint(Sketcher.Constraint("Coincident", 1, 2, 2, 1))
sketch7.addConstraint(Sketcher.Constraint("Coincident", 2, 2, 3, 1))
sketch7.addConstraint(Sketcher.Constraint("Coincident", 3, 2, 0, 1))
sketch7.addConstraint(Sketcher.Constraint("Coincident", 4, 2, 5, 1))
sketch7.addConstraint(Sketcher.Constraint("Coincident", 5, 2, 6, 1))
sketch7.addConstraint(Sketcher.Constraint("Coincident", 6, 2, 7, 1))
sketch7.addConstraint(Sketcher.Constraint("Coincident", 7, 2, 4, 1))
sketch7.addConstraint(Sketcher.Constraint("Vertical", 0))
sketch7.addConstraint(Sketcher.Constraint("Horizontal", 1))
sketch7.addConstraint(Sketcher.Constraint("Vertical", 2))
sketch7.addConstraint(Sketcher.Constraint("Horizontal", 3))
sketch7.addConstraint(Sketcher.Constraint("Horizontal", 4))
sketch7.addConstraint(Sketcher.Constraint("Vertical", 5))
sketch7.addConstraint(Sketcher.Constraint("Horizontal", 6))
sketch7.addConstraint(Sketcher.Constraint("Vertical", 7))
sketch7.addConstraint(Sketcher.Constraint("Symmetric", 1, 2, 4, 2, -1, 1))
sketch7.addConstraint(Sketcher.Constraint("Symmetric", 3, 2, 6, 2, -1, 1))
sketch7.addConstraint(Sketcher.Constraint("Vertical", 3, 2, 4, 2))
sketch7.addConstraint(Sketcher.Constraint("DistanceX", 1, 1, 1, 2, 30.0))
sketch7.addConstraint(Sketcher.Constraint("DistanceY", 0, 1, 0, 2, 10.0))
sketch7.addConstraint(Sketcher.Constraint("DistanceY", 0, 2, 4, 2, 115.593))
pocket3 = body.newObject("PartDesign::Pocket", "Pocket002")
pocket3.Profile = sketch7
pocket3.Length = 10
pocket3.Reversed = True
doc.recompute()

chamfer = body.newObject("PartDesign::Chamfer", "Chamfer")
chamfer.Base = (pocket3, edges_at(pocket3, [
    (-58.714, 33.898, 10),
    (0, 67.796, 10),
    (58.714, 33.898, 10),
    (58.714, -33.898, 10),
    (0, -67.796, 10),
    (-58.714, -33.898, 10),
]))
chamfer.Size = 5

sketch8 = body.newObject("Sketcher::SketchObject", "Sketch007")
sketch8.AttachmentSupport = (doc.getObject("XY_Plane"), [""])
sketch8.MapMode = "FlatFace"
sketch8.AttachmentOffset = App.Placement(App.Vector(0, 0, -90), App.Rotation())
sketch8.addGeometry(Part.Circle(App.Vector(0, 62.8, 0), App.Vector(0, 0, 1), 2.5), False)
sketch8.addGeometry(Part.Circle(App.Vector(0, -62.8, 0), App.Vector(0, 0, 1), 2.5), False)
sketch8.addConstraint(Sketcher.Constraint("Equal", 0, 1))
sketch8.addConstraint(Sketcher.Constraint("Symmetric", 0, 3, 1, 3, -1, 1))
sketch8.addConstraint(Sketcher.Constraint("PointOnObject", 0, 3, -2))
sketch8.addConstraint(Sketcher.Constraint("Diameter", 0, 5.0))
sketch8.addConstraint(Sketcher.Constraint("DistanceY", 1, 3, 0, 3, 125.593))
pocket4 = body.newObject("PartDesign::Pocket", "Pocket003")
pocket4.Profile = sketch8
pocket4.Length = 50
pocket4.Reversed = True

sketch9 = body.newObject("Sketcher::SketchObject", "Sketch008")
sketch9.Placement = App.Placement(App.Vector(-78.2846, 0, -75), App.Rotation(App.Vector(0, 0, 1), App.Vector(-0.5, 0.866025404, 0), App.Vector(-0.866025404, -0.5, 0), "ZXY"))
sketch9.addGeometry(Part.LineSegment(App.Vector(50, -56.6, 0), App.Vector(50, -21.6, 0)), False)
sketch9.addGeometry(Part.LineSegment(App.Vector(50, -21.6, 0), App.Vector(15, -21.6, 0)), False)
sketch9.addGeometry(Part.LineSegment(App.Vector(15, -21.6, 0), App.Vector(15, -56.6, 0)), False)
sketch9.addGeometry(Part.LineSegment(App.Vector(15, -56.6, 0), App.Vector(50, -56.6, 0)), False)
sketch9.addGeometry(Part.Circle(App.Vector(32.5, -11.6, 0), App.Vector(0, 0, 1), 1.5), False)
sketch9.addGeometry(Part.Circle(App.Vector(32.5, -66.6, 0), App.Vector(0, 0, 1), 1.5), False)
sketch9.addConstraint(Sketcher.Constraint("Coincident", 0, 2, 1, 1))
sketch9.addConstraint(Sketcher.Constraint("Coincident", 1, 2, 2, 1))
sketch9.addConstraint(Sketcher.Constraint("Coincident", 2, 2, 3, 1))
sketch9.addConstraint(Sketcher.Constraint("Coincident", 3, 2, 0, 1))
sketch9.addConstraint(Sketcher.Constraint("Vertical", 0))
sketch9.addConstraint(Sketcher.Constraint("Horizontal", 1))
sketch9.addConstraint(Sketcher.Constraint("Vertical", 2))
sketch9.addConstraint(Sketcher.Constraint("Horizontal", 3))
sketch9.addConstraint(Sketcher.Constraint("Equal", 4, 5))
sketch9.addConstraint(Sketcher.Constraint("Vertical", 4, 3, 5, 3))
sketch9.addConstraint(Sketcher.Constraint("Equal", 3, 0))
sketch9.addConstraint(Sketcher.Constraint("Diameter", 4, 3.0))
sketch9.addConstraint(Sketcher.Constraint("DistanceX", 1, 2, 1, 1, 35.0))
sketch9.addConstraint(Sketcher.Constraint("DistanceX", -1, 1, 1, 2, 15.0))
sketch9.addConstraint(Sketcher.Constraint("DistanceY", 0, 2, 4, 3, 10.0))
sketch9.addConstraint(Sketcher.Constraint("DistanceY", 5, 3, 2, 2, 10.0))
sketch9.addConstraint(Sketcher.Constraint("DistanceX", -1, 1, 4, 3, 32.5))
sketch9.addConstraint(Sketcher.Constraint("DistanceY", 4, 3, -1, 1, 11.6423))
pocket5 = body.newObject("PartDesign::Pocket", "Pocket004")
pocket5.Profile = sketch9
pocket5.Length = 25

sketch10 = body.newObject("Sketcher::SketchObject", "Sketch009")
sketch10.Placement = App.Placement(App.Vector(78.2846, 0, 5), App.Rotation(App.Vector(0, 0, -1), App.Vector(-0.5, 0.866025404, 0), App.Vector(0.866025404, 0.5, 0), "ZXY"))
sketch10.addGeometry(Part.LineSegment(App.Vector(25, 65, 0), App.Vector(10, 39, 0)), False)
sketch10.addGeometry(Part.LineSegment(App.Vector(10, 39, 0), App.Vector(25, 13, 0)), False)
sketch10.addGeometry(Part.LineSegment(App.Vector(25, 13, 0), App.Vector(55, 13, 0)), False)
sketch10.addGeometry(Part.LineSegment(App.Vector(55, 13, 0), App.Vector(70, 39, 0)), False)
sketch10.addGeometry(Part.LineSegment(App.Vector(70, 39, 0), App.Vector(55, 65, 0)), False)
sketch10.addGeometry(Part.LineSegment(App.Vector(55, 65, 0), App.Vector(25, 65, 0)), False)
sketch10.addConstraint(Sketcher.Constraint("Coincident", 0, 2, 1, 1))
sketch10.addConstraint(Sketcher.Constraint("Coincident", 1, 2, 2, 1))
sketch10.addConstraint(Sketcher.Constraint("Coincident", 2, 2, 3, 1))
sketch10.addConstraint(Sketcher.Constraint("Coincident", 3, 2, 4, 1))
sketch10.addConstraint(Sketcher.Constraint("Coincident", 4, 2, 5, 1))
sketch10.addConstraint(Sketcher.Constraint("Coincident", 5, 2, 0, 1))
sketch10.addConstraint(Sketcher.Constraint("Horizontal", 2))
sketch10.addConstraint(Sketcher.Constraint("Horizontal", 5))
sketch10.addConstraint(Sketcher.Constraint("Parallel", 0, 3))
sketch10.addConstraint(Sketcher.Constraint("Parallel", 1, 4))
sketch10.addConstraint(Sketcher.Constraint("Horizontal", 0, 2, 3, 2))
sketch10.addConstraint(Sketcher.Constraint("Vertical", 2, 2, 4, 2))
sketch10.addConstraint(Sketcher.Constraint("Vertical", 1, 2, 5, 2))
sketch10.addConstraint(Sketcher.Constraint("Angle", 1, Q("-60 deg")))
sketch10.addConstraint(Sketcher.Constraint("DistanceX", 0, 2, 3, 2, 60.0))
sketch10.addConstraint(Sketcher.Constraint("DistanceX", 2, 1, 2, 2, 30.0))
sketch10.addConstraint(Sketcher.Constraint("DistanceX", -1, 1, 0, 2, 10.0))
sketch10.addConstraint(Sketcher.Constraint("DistanceY", -1, 1, 4, 2, 65.123))
pad5 = body.newObject("PartDesign::Pad", "Pad004")
pad5.Profile = sketch10
pad5.Length = 5

doc.recompute()
